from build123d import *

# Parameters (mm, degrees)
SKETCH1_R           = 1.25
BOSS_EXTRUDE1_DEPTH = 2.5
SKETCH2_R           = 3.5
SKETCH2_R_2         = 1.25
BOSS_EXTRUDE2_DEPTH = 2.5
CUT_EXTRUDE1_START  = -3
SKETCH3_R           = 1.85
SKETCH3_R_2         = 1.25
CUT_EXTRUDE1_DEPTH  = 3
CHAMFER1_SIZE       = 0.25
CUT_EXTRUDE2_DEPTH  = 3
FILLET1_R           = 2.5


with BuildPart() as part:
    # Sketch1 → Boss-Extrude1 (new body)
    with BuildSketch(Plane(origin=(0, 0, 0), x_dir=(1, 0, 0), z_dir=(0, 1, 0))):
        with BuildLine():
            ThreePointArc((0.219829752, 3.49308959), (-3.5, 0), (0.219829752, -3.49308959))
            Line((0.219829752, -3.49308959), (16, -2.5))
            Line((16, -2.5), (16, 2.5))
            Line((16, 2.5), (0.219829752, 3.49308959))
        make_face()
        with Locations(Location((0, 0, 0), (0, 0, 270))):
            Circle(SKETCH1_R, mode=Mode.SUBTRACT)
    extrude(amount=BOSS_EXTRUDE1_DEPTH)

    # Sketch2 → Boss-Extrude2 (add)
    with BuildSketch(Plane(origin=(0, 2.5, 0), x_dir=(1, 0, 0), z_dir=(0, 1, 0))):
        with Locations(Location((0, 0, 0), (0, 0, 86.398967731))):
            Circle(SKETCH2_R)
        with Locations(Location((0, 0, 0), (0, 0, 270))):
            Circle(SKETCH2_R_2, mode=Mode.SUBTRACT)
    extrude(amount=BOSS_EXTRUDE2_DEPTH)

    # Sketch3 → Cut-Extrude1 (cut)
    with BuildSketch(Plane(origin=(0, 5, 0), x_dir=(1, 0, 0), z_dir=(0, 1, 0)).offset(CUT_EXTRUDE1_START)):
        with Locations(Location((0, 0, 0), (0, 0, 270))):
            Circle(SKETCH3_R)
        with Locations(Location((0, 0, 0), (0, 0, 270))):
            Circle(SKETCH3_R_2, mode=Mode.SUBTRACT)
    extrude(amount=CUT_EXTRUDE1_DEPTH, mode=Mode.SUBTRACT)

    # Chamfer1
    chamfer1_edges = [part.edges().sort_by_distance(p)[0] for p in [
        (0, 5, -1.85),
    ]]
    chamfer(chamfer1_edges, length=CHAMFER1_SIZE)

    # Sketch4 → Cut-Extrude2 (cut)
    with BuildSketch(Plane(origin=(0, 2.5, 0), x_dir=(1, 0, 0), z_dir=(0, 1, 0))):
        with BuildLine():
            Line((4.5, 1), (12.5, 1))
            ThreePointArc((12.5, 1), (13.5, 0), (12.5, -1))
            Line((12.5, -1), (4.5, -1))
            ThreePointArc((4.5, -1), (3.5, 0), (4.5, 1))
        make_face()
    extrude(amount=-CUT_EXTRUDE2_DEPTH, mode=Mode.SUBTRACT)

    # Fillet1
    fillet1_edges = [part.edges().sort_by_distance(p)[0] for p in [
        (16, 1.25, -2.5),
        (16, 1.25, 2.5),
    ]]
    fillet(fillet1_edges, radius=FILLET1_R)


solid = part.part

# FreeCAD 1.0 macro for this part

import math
import FreeCAD as App
import Part
import Sketcher


def edges_at(feature, points):
    """Names of the edges that pass closest to the given points."""
    edges = feature.Shape.Edges
    near = lambda p: min(range(len(edges)), key=lambda i: edges[i].distToShape(Part.Vertex(*p))[0])
    return sorted({f"Edge{near(p) + 1}" for p in points})

doc = App.newDocument("Part")
body = doc.addObject("PartDesign::Body", "Body")

# Sketch on XZ plane
sketch1 = body.newObject("Sketcher::SketchObject", "Sketch")
sketch1.AttachmentSupport = (doc.getObject("XZ_Plane"), [""])
sketch1.MapMode = "FlatFace"
sketch1.addGeometry([
    Part.ArcOfCircle(Part.Circle(App.Vector(0, 0, 0), App.Vector(0, 0, 1), 3.5), math.radians(86), math.radians(274)),  # 0
    Part.LineSegment(App.Vector(0.2, 3.5, 0), App.Vector(16, 2.5, 0)),  # 1
    Part.LineSegment(App.Vector(16, 2.5, 0), App.Vector(16, -2.5, 0)),  # 2
    Part.LineSegment(App.Vector(16, -2.5, 0), App.Vector(0.2, -3.5, 0)),  # 3
    Part.Circle(App.Vector(0, 0, 0), App.Vector(0, 0, 1), 1.2),  # 4
], False)
sketch1.addConstraint([
    Sketcher.Constraint("Tangent", 0, 1, 1, 1),
    Sketcher.Constraint("Coincident", 1, 2, 2, 1),
    Sketcher.Constraint("Coincident", 2, 2, 3, 1),
    Sketcher.Constraint("Tangent", 3, 2, 0, 2),
    Sketcher.Constraint("Vertical", 2),
    Sketcher.Constraint("Coincident", 0, 3, -1, 1),
    Sketcher.Constraint("Coincident", 4, 3, -1, 1),
    Sketcher.Constraint("Vertical", 0, 1, 3, 2),
    Sketcher.Constraint("Diameter", 4, 2.5),
    Sketcher.Constraint("Radius", 0, 3.5),
    Sketcher.Constraint("DistanceY", 2, 2, 2, 1, 5.0),
    Sketcher.Constraint("DistanceX", -1, 1, 1, 2, 16.0),
])
pad1 = body.newObject("PartDesign::Pad", "Pad")
pad1.Profile = sketch1
pad1.Length = 2.5
pad1.Reversed = True

# Sketch on XZ plane
sketch2 = body.newObject("Sketcher::SketchObject", "Sketch001")
sketch2.AttachmentSupport = (doc.getObject("XZ_Plane"), [""])
sketch2.MapMode = "FlatFace"
sketch2.AttachmentOffset = App.Placement(App.Vector(0, 0, -2.5), App.Rotation())
sketch2.addGeometry([
    Part.Circle(App.Vector(0, 0, 0), App.Vector(0, 0, 1), 3.5),
    Part.Circle(App.Vector(0, 0, 0), App.Vector(0, 0, 1), 1.2),
], False)
sketch2.addConstraint([
    Sketcher.Constraint("Coincident", 0, 3, -1, 1),
    Sketcher.Constraint("Coincident", 1, 3, -1, 1),
    Sketcher.Constraint("Diameter", 0, 7.0),
    Sketcher.Constraint("Diameter", 1, 2.5),
])
pad2 = body.newObject("PartDesign::Pad", "Pad001")
pad2.Profile = sketch2
pad2.Length = 2.5
pad2.Reversed = True

# Sketch on XZ plane
sketch3 = body.newObject("Sketcher::SketchObject", "Sketch002")
sketch3.AttachmentSupport = (doc.getObject("XZ_Plane"), [""])
sketch3.MapMode = "FlatFace"
sketch3.AttachmentOffset = App.Placement(App.Vector(0, 0, -2), App.Rotation())
sketch3.addGeometry([
    Part.Circle(App.Vector(0, 0, 0), App.Vector(0, 0, 1), 1.9),
    Part.Circle(App.Vector(0, 0, 0), App.Vector(0, 0, 1), 1.2),
], False)
sketch3.addConstraint([
    Sketcher.Constraint("Coincident", 0, 3, -1, 1),
    Sketcher.Constraint("Coincident", 1, 3, -1, 1),
    Sketcher.Constraint("Diameter", 0, 3.7),
    Sketcher.Constraint("Diameter", 1, 2.5),
])
pocket1 = body.newObject("PartDesign::Pocket", "Pocket")
pocket1.Profile = sketch3
pocket1.Length = 3
doc.recompute()

chamfer = body.newObject("PartDesign::Chamfer", "Chamfer")
chamfer.Base = (pocket1, edges_at(pocket1, [(0, 5, -1.85)]))
chamfer.Size = 0.25

# Sketch on XZ plane
sketch4 = body.newObject("Sketcher::SketchObject", "Sketch003")
sketch4.AttachmentSupport = (doc.getObject("XZ_Plane"), [""])
sketch4.MapMode = "FlatFace"
sketch4.AttachmentOffset = App.Placement(App.Vector(0, 0, -2.5), App.Rotation())
sketch4.addGeometry([
    Part.LineSegment(App.Vector(12.5, -1, 0), App.Vector(4.5, -1, 0)),
    Part.ArcOfCircle(Part.Circle(App.Vector(4.5, 0, 0), App.Vector(0, 0, 1), 1), math.radians(90), math.radians(270)),
    Part.LineSegment(App.Vector(4.5, 1, 0), App.Vector(12.5, 1, 0)),
    Part.ArcOfCircle(Part.Circle(App.Vector(12.5, 0, 0), App.Vector(0, 0, 1), 1), math.radians(-90), math.radians(90)),
], False)
sketch4.addConstraint([
    Sketcher.Constraint("Tangent", 0, 2, 1, 2),
    Sketcher.Constraint("Tangent", 1, 1, 2, 1),
    Sketcher.Constraint("Tangent", 2, 2, 3, 2),
    Sketcher.Constraint("Tangent", 3, 1, 0, 1),
    Sketcher.Constraint("Horizontal", 0),
    Sketcher.Constraint("Horizontal", 2),
    Sketcher.Constraint("PointOnObject", 1, 3, -1),
    Sketcher.Constraint("Radius", 1, 1.0),
    Sketcher.Constraint("DistanceX", 0, 2, 0, 1, 8.0),
    Sketcher.Constraint("DistanceX", -1, 1, 1, 3, 4.5),
])
pocket2 = body.newObject("PartDesign::Pocket", "Pocket001")
pocket2.Profile = sketch4
pocket2.Length = 3
pocket2.Reversed = True
doc.recompute()

fillet = body.newObject("PartDesign::Fillet", "Fillet")
fillet.Base = (pocket2, edges_at(pocket2, [(16, 1.25, -2.5), (16, 1.25, 2.5)]))
fillet.Radius = 2.5

doc.recompute()
